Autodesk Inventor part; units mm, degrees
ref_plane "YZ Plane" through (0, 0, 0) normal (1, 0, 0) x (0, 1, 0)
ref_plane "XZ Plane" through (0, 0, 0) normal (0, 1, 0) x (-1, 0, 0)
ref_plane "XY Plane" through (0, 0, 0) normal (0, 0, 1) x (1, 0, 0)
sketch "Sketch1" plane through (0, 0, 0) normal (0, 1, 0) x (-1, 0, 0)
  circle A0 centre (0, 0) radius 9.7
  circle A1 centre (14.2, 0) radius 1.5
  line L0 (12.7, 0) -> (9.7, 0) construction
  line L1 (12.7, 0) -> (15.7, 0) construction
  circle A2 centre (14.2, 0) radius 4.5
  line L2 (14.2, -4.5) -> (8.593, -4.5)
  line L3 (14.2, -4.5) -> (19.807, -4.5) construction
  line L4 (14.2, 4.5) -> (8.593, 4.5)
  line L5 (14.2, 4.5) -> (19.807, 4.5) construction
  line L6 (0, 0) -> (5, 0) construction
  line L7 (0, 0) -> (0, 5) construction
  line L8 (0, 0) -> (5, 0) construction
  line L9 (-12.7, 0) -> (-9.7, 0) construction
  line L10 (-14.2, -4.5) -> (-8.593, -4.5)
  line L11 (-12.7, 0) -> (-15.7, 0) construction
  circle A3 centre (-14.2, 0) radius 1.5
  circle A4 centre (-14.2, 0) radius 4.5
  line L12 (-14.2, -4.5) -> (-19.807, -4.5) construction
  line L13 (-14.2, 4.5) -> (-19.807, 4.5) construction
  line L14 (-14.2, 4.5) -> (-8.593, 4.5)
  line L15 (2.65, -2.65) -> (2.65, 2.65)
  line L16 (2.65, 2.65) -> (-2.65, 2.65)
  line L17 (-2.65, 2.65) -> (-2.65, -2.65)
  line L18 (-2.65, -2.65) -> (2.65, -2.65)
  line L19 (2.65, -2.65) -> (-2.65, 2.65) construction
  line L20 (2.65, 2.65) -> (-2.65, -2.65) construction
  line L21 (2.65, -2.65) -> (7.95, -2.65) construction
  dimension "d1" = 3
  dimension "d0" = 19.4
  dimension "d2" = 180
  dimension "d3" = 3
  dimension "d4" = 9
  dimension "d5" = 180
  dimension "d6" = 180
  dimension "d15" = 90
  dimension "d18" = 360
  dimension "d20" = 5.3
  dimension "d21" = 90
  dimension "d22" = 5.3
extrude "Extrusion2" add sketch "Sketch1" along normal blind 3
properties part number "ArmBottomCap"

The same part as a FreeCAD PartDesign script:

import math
import FreeCAD as App
import Part
import Sketcher
Q = App.Units.Quantity

doc = App.newDocument("Part")
body = doc.addObject("PartDesign::Body", "Body")

# Sketch on XZ plane
sketch1 = body.newObject("Sketcher::SketchObject", "Sketch")
sketch1.AttachmentSupport = (doc.getObject("XZ_Plane"), [""])
sketch1.MapMode = "FlatFace"
sketch1.addGeometry(Part.ArcOfCircle(Part.Circle(App.Vector(0, 0, 0), App.Vector(0, 0, 1), 9.7), math.radians(-152), math.radians(-28)), False)
sketch1.addGeometry(Part.LineSegment(App.Vector(-8.6, -4.5, 0), App.Vector(-14.2, -4.5, 0)), False)
sketch1.addGeometry(Part.ArcOfCircle(Part.Circle(App.Vector(-14.2, 0, 0), App.Vector(0, 0, 1), 4.5), math.radians(90), math.radians(270)), False)
sketch1.addGeometry(Part.LineSegment(App.Vector(-14.2, 4.5, 0), App.Vector(-8.6, 4.5, 0)), False)
sketch1.addGeometry(Part.ArcOfCircle(Part.Circle(App.Vector(0, 0, 0), App.Vector(0, 0, 1), 9.7), math.radians(28), math.radians(152)), False)
sketch1.addGeometry(Part.LineSegment(App.Vector(8.6, 4.5, 0), App.Vector(14.2, 4.5, 0)), False)
sketch1.addGeometry(Part.ArcOfCircle(Part.Circle(App.Vector(14.2, 0, 0), App.Vector(0, 0, 1), 4.5), math.radians(-90), math.radians(90)), False)
sketch1.addGeometry(Part.LineSegment(App.Vector(14.2, -4.5, 0), App.Vector(8.6, -4.5, 0)), False)
sketch1.addGeometry(Part.LineSegment(App.Vector(-2.6, 2.6, 0), App.Vector(-2.6, -2.6, 0)), False)
sketch1.addGeometry(Part.LineSegment(App.Vector(-2.6, -2.6, 0), App.Vector(2.6, -2.6, 0)), False)
sketch1.addGeometry(Part.LineSegment(App.Vector(2.6, -2.6, 0), App.Vector(2.6, 2.6, 0)), False)
sketch1.addGeometry(Part.LineSegment(App.Vector(2.6, 2.6, 0), App.Vector(-2.6, 2.6, 0)), False)
sketch1.addGeometry(Part.Circle(App.Vector(-14.2, 0, 0), App.Vector(0, 0, 1), 1.5), False)
sketch1.addGeometry(Part.Circle(App.Vector(14.2, 0, 0), App.Vector(0, 0, 1), 1.5), False)
sketch1.addConstraint(Sketcher.Constraint("Coincident", 0, 1, 1, 1))
sketch1.addConstraint(Sketcher.Constraint("Tangent", 1, 2, 2, 2))
sketch1.addConstraint(Sketcher.Constraint("Tangent", 2, 1, 3, 1))
sketch1.addConstraint(Sketcher.Constraint("Coincident", 3, 2, 4, 2))
sketch1.addConstraint(Sketcher.Constraint("Coincident", 4, 1, 5, 1))
sketch1.addConstraint(Sketcher.Constraint("Tangent", 5, 2, 6, 2))
sketch1.addConstraint(Sketcher.Constraint("Tangent", 6, 1, 7, 1))
sketch1.addConstraint(Sketcher.Constraint("Coincident", 7, 2, 0, 2))
sketch1.addConstraint(Sketcher.Constraint("Coincident", 8, 2, 9, 1))
sketch1.addConstraint(Sketcher.Constraint("Coincident", 9, 2, 10, 1))
sketch1.addConstraint(Sketcher.Constraint("Coincident", 10, 2, 11, 1))
sketch1.addConstraint(Sketcher.Constraint("Coincident", 11, 2, 8, 1))
sketch1.addConstraint(Sketcher.Constraint("Horizontal", 1))
sketch1.addConstraint(Sketcher.Constraint("Horizontal", 3))
sketch1.addConstraint(Sketcher.Constraint("Horizontal", 5))
sketch1.addConstraint(Sketcher.Constraint("Horizontal", 7))
sketch1.addConstraint(Sketcher.Constraint("Vertical", 8))
sketch1.addConstraint(Sketcher.Constraint("Horizontal", 9))
sketch1.addConstraint(Sketcher.Constraint("Vertical", 10))
sketch1.addConstraint(Sketcher.Constraint("Horizontal", 11))
sketch1.addConstraint(Sketcher.Constraint("Coincident", 0, 3, -1, 1))
sketch1.addConstraint(Sketcher.Constraint("Coincident", 4, 3, -1, 1))
sketch1.addConstraint(Sketcher.Constraint("Coincident", 12, 3, 2, 3))
sketch1.addConstraint(Sketcher.Constraint("Coincident", 13, 3, 6, 3))
sketch1.addConstraint(Sketcher.Constraint("Equal", 0, 4))
sketch1.addConstraint(Sketcher.Constraint("Equal", 2, 6))
sketch1.addConstraint(Sketcher.Constraint("Equal", 12, 13))
sketch1.addConstraint(Sketcher.Constraint("Symmetric", 2, 3, 6, 3, -1, 1))
sketch1.addConstraint(Sketcher.Constraint("Symmetric", 8, 2, 10, 2, -1, 1))
sketch1.addConstraint(Sketcher.Constraint("PointOnObject", 2, 3, -1))
sketch1.addConstraint(Sketcher.Constraint("Equal", 11, 8))
sketch1.addConstraint(Sketcher.Constraint("Diameter", 12, Q("3 mm")))
sketch1.addConstraint(Sketcher.Constraint("Radius", 0, Q("9.7 mm")))
sketch1.addConstraint(Sketcher.Constraint("Radius", 2, Q("4.5 mm")))
sketch1.addConstraint(Sketcher.Constraint("DistanceX", 9, 1, 9, 2, Q("5.3 mm")))
sketch1.addConstraint(Sketcher.Constraint("DistanceX", 2, 3, -1, 1, Q("14.2 mm")))
pad1 = body.newObject("PartDesign::Pad", "Pad")
pad1.Profile = sketch1
pad1.Length = 3
pad1.Reversed = True

doc.recompute()
